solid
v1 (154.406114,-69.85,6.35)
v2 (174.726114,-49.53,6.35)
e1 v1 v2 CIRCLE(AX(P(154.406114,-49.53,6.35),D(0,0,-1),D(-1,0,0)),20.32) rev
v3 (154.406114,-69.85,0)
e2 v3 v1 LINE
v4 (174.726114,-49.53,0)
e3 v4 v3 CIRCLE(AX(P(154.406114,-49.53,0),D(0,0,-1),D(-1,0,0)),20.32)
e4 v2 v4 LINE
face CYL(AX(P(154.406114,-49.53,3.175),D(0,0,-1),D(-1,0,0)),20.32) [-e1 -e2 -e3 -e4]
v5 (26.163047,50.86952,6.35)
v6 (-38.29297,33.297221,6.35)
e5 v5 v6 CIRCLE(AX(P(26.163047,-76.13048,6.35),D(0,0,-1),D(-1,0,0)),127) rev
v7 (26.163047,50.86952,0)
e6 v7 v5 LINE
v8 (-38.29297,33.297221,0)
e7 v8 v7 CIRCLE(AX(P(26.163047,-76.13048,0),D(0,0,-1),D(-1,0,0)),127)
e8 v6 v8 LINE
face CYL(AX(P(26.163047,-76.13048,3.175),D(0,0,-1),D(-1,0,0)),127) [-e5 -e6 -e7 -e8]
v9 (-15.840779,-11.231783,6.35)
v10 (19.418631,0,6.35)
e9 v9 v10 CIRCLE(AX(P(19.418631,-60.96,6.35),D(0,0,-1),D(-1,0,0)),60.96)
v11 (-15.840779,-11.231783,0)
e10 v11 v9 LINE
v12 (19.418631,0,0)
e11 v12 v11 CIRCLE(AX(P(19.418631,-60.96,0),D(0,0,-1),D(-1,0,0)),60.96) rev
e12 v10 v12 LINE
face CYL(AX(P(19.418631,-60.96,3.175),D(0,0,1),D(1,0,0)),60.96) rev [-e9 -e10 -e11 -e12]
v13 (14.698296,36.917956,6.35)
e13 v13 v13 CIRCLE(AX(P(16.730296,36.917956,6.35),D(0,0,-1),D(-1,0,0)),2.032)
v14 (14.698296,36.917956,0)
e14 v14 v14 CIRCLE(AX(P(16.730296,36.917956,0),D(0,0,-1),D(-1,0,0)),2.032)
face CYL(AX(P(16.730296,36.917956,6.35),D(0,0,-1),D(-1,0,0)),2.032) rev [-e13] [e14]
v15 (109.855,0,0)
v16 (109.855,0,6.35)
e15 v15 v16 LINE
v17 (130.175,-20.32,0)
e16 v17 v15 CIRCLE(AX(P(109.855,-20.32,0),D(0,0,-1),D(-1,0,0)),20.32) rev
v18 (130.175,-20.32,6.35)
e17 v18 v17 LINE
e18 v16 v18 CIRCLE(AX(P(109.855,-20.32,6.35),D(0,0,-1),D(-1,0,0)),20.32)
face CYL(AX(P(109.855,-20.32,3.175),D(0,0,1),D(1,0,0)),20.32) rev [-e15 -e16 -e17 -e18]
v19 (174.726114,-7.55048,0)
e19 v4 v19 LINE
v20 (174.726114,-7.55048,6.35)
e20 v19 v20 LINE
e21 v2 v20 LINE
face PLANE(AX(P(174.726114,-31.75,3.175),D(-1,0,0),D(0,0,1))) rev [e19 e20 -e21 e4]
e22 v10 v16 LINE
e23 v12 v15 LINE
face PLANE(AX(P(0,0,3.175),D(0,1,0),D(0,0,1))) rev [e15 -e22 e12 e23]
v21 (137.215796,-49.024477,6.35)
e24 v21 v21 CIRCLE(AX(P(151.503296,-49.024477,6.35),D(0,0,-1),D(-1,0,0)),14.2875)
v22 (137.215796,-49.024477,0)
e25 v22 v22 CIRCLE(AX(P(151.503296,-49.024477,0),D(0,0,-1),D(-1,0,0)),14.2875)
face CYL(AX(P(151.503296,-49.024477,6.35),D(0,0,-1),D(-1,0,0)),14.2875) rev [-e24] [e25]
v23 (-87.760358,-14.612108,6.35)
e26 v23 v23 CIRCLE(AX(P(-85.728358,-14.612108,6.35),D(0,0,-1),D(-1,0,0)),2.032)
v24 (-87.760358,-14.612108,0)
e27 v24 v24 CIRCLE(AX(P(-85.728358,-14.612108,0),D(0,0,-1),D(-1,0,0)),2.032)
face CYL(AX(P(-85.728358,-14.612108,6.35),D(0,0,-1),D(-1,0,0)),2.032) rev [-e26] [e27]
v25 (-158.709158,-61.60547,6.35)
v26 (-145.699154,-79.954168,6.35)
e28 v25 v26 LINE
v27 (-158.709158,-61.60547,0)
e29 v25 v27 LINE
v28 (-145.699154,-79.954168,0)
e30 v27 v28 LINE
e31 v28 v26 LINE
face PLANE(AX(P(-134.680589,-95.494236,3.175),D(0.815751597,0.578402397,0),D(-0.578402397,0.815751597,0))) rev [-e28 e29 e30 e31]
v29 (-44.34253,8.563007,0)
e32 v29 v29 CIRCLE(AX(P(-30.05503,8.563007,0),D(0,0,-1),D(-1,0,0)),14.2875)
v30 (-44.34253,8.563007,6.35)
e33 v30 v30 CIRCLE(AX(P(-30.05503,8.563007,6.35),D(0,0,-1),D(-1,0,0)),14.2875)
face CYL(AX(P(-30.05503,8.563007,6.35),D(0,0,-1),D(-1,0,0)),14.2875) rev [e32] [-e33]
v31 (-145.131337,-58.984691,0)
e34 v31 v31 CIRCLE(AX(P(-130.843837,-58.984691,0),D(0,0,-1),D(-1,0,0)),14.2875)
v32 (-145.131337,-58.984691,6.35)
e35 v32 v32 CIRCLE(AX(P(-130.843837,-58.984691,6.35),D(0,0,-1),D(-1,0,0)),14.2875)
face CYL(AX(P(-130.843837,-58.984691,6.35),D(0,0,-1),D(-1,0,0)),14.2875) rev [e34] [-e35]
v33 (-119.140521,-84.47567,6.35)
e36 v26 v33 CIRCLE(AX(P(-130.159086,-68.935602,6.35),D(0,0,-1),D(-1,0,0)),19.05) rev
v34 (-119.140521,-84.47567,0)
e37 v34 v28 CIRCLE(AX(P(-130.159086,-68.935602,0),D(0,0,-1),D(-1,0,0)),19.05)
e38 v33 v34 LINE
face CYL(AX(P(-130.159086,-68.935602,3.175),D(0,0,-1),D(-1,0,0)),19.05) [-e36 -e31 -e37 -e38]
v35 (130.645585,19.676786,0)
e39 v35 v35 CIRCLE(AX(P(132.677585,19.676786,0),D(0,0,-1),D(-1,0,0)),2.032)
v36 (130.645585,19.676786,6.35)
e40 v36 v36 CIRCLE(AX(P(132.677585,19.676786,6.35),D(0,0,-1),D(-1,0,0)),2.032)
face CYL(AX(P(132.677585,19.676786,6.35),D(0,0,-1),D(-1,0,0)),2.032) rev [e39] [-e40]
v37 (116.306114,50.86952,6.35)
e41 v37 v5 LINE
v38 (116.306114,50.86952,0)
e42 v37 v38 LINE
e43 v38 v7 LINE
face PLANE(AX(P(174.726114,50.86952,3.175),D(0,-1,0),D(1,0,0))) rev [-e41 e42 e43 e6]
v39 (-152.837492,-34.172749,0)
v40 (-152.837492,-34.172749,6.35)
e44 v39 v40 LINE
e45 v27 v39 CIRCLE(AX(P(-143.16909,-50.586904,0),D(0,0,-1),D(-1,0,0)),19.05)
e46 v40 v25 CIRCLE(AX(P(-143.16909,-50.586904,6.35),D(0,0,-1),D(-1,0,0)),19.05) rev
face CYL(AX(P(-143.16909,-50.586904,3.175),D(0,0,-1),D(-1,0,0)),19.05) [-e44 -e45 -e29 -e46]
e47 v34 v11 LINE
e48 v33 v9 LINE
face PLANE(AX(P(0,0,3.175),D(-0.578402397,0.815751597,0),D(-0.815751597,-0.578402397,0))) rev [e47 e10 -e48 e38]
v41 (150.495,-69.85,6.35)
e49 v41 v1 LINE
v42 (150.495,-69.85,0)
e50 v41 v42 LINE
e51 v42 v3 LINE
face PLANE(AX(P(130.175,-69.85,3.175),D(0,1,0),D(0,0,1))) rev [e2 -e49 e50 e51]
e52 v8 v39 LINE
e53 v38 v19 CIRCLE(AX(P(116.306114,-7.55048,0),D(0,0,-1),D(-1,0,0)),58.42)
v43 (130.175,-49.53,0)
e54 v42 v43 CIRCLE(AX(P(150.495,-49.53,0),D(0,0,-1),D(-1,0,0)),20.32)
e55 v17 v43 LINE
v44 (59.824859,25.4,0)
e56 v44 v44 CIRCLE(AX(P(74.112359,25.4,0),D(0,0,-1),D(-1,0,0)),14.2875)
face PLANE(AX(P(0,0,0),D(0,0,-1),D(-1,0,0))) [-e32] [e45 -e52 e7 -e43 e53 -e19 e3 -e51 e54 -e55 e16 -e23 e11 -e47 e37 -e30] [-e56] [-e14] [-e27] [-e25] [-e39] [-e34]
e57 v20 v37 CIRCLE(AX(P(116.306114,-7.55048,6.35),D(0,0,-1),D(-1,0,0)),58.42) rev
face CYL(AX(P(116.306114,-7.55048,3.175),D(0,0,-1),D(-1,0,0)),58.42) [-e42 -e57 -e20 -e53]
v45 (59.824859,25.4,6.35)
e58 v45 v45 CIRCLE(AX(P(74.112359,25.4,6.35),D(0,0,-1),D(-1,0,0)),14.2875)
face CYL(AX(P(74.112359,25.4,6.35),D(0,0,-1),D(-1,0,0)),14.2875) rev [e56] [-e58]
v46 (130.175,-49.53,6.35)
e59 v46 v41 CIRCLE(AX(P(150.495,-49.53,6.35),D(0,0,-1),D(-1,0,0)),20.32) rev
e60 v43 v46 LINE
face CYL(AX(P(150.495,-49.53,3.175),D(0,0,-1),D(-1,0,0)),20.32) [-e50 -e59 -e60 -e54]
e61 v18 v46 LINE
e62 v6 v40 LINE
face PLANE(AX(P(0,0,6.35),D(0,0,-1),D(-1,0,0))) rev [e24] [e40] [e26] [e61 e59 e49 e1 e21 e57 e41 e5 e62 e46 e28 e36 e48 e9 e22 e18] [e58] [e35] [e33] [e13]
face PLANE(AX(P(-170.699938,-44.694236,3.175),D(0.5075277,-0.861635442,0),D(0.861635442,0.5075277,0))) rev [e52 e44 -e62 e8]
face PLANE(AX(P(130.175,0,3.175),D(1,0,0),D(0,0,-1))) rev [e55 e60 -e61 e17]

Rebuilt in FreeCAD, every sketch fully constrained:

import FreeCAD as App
import Part
import Sketcher

V = App.Vector
Q = App.Units.Quantity


def edges_at(feature, points):
    """Names of the edges that pass closest to the given points."""
    edges = feature.Shape.Edges
    near = lambda p: min(range(len(edges)), key=lambda i: edges[i].distToShape(Part.Vertex(*p))[0])
    return sorted({f"Edge{near(p) + 1}" for p in points})


def add_polygon(sketch, points):
    """Adds a closed chain of lines whose ends are joined by coincident constraints."""
    first, n = sketch.GeometryCount, len(points)
    for a, b in zip(points, points[1:] + points[:1]):
        sketch.addGeometry(Part.LineSegment(App.Vector(*a, 0), App.Vector(*b, 0)), False)
    for i in range(n):
        sketch.addConstraint(Sketcher.Constraint("Coincident", first + i, 2, first + (i + 1) % n, 1))

doc = App.newDocument("Part")
body = doc.addObject("PartDesign::Body", "Body")

sketch1 = doc.addObject("Sketcher::SketchObject", "Sketch")
body.addObject(sketch1)
sketch1.AttachmentSupport = (doc.XY_Plane, [""])
sketch1.MapMode = "FlatFace"
add_polygon(sketch1, [(-135, -95), (0, 0), (130, 0), (130, -70), (175, -70), (175, 51), (-8, 51), (-171, -45)])
sketch1.addConstraint([
    Sketcher.Constraint("Horizontal", 1),
    Sketcher.Constraint("Vertical", 2),
    Sketcher.Constraint("Horizontal", 3),
    Sketcher.Constraint("Vertical", 4),
    Sketcher.Constraint("Horizontal", 5),
    Sketcher.Constraint("Coincident", 0, 2, -1, 1),
    Sketcher.Constraint("Perpendicular", 0, 7),
    Sketcher.Constraint("DistanceY", 7, 2, 6, 2, Q("2 in")),
    Sketcher.Constraint("Distance", 0, Q("6.5 in")),
    Sketcher.Constraint("DistanceY", 2, 2, 2, 1, Q("2.75 in")),
    Sketcher.Constraint("DistanceX", 1, 1, 1, 2, Q("5.125 in")),
    Sketcher.Constraint("DistanceY", 4, 1, 4, 2, 120.71952),
    Sketcher.Constraint("Distance", 6, 188.292691),
    Sketcher.Constraint("Distance", 7, 62.273859),
    Sketcher.Constraint("DistanceX", 3, 1, 3, 2, 44.551114),
])
pad1 = doc.addObject("PartDesign::Pad", "Pad")
body.addObject(pad1)
pad1.Profile = sketch1
pad1.Length = Q("0.125 in")
doc.recompute()

fillet = doc.addObject("PartDesign::Fillet", "Fillet")
body.addObject(fillet)
fillet.Base = (pad1, edges_at(pad1, [(-8.46, 50.87, 1.587)]))
fillet.Radius = Q("5 in")
doc.recompute()

fillet2 = doc.addObject("PartDesign::Fillet", "Fillet001")
body.addObject(fillet2)
fillet2.Base = (fillet, edges_at(fillet, [(174.726, 50.87, 1.587)]))
fillet2.Radius = Q("0.25 in")

sketch2 = doc.addObject("Sketcher::SketchObject", "Sketch001")
body.addObject(sketch2)
sketch2.AttachmentSupport = (doc.XY_Plane, [""])
sketch2.MapMode = "FlatFace"
sketch2.addGeometry([
    Part.Circle(V(151.5, -49, 0), V(0, 0, 1), 14.3),
    Part.Circle(V(-130.8, -59, 0), V(0, 0, 1), 14.3),
    Part.Circle(V(-30.1, 8.6, 0), V(0, 0, 1), 14.3),
    Part.Circle(V(74.1, 25.4, 0), V(0, 0, 1), 14.3),
    Part.Circle(V(-85.7, -14.6, 0), V(0, 0, 1), 2),
    Part.Circle(V(132.7, 19.7, 0), V(0, 0, 1), 2),
    Part.Circle(V(16.7, 36.9, 0), V(0, 0, 1), 2),
], False)
sketch2.addConstraint([
    Sketcher.Constraint("Equal", 0, 1),
    Sketcher.Constraint("Equal", 1, 2),
    Sketcher.Constraint("Equal", 2, 3),
    Sketcher.Constraint("Equal", 4, 5),
    Sketcher.Constraint("Equal", 5, 6),
    Sketcher.Constraint("Diameter", 4, Q("0.16 in")),
    Sketcher.Constraint("Diameter", 0, Q("1.125 in")),
    Sketcher.Constraint("DistanceY", -1, 1, 3, 3, Q("1 in")),
    Sketcher.Constraint("DistanceX", 1, 3, 4, 3, Q("1.7762 in")),
    Sketcher.Constraint("DistanceY", 1, 3, 2, 3, 67.547698),
    Sketcher.Constraint("DistanceX", 6, 3, 0, 3, 134.773),
    Sketcher.Constraint("DistanceY", 1, 3, -1, 1, 58.984691),
    Sketcher.Constraint("DistanceX", 2, 3, -1, 1, 30.05503),
    Sketcher.Constraint("DistanceX", -1, 1, 3, 3, 74.112359),
    Sketcher.Constraint("DistanceX", 4, 3, -1, 1, 85.728358),
    Sketcher.Constraint("DistanceY", 4, 3, -1, 1, 14.612108),
    Sketcher.Constraint("DistanceY", 0, 3, 4, 3, 34.412369),
    Sketcher.Constraint("DistanceX", 5, 3, 0, 3, 18.825711),
    Sketcher.Constraint("DistanceY", 2, 3, 5, 3, 11.113779),
    Sketcher.Constraint("DistanceY", 2, 3, 6, 3, 28.354948),
    Sketcher.Constraint("DistanceX", -1, 1, 0, 3, 151.503296),
])
pocket1 = doc.addObject("PartDesign::Pocket", "Pocket")
body.addObject(pocket1)
pocket1.Profile = sketch2
pocket1.Length = Q("0.725 in")
pocket1.Reversed = True
doc.recompute()

fillet3 = doc.addObject("PartDesign::Fillet", "Fillet002")
body.addObject(fillet3)
fillet3.Base = (pocket1, edges_at(pocket1, [(-134.681, -95.494, 1.587)]))
fillet3.Radius = Q("1.3 in")

sketch3 = doc.addObject("Sketcher::SketchObject", "Sketch002")
body.addObject(sketch3)
sketch3.AttachmentSupport = (doc.XY_Plane, [""])
sketch3.MapMode = "FlatFace"
add_polygon(sketch3, [(-135, -95), (0, 0), (130, 0), (130, -70), (175, -70), (175, 51), (-8, 51), (-171, -45)])
sketch3.addConstraint([
    Sketcher.Constraint("Horizontal", 1),
    Sketcher.Constraint("Vertical", 2),
    Sketcher.Constraint("Horizontal", 3),
    Sketcher.Constraint("Vertical", 4),
    Sketcher.Constraint("Horizontal", 5),
    Sketcher.Constraint("Coincident", 0, 2, -1, 1),
    Sketcher.Constraint("Perpendicular", 0, 7),
    Sketcher.Constraint("DistanceY", 7, 2, 6, 2, Q("2 in")),
    Sketcher.Constraint("Distance", 0, Q("6.5 in")),
    Sketcher.Constraint("DistanceY", 2, 2, 2, 1, Q("2.75 in")),
    Sketcher.Constraint("DistanceX", 1, 1, 1, 2, Q("5.125 in")),
    Sketcher.Constraint("DistanceY", 4, 1, 4, 2, 120.71952),
    Sketcher.Constraint("Distance", 6, 188.292691),
    Sketcher.Constraint("Distance", 7, 62.273859),
    Sketcher.Constraint("DistanceX", 3, 1, 3, 2, 44.551114),
])
pad2 = doc.addObject("PartDesign::Pad", "Pad001")
body.addObject(pad2)
pad2.Profile = sketch3
pad2.Length = Q("0.25 in")
doc.recompute()

fillet4 = doc.addObject("PartDesign::Fillet", "Fillet003")
body.addObject(fillet4)
fillet4.Base = (pad2, edges_at(pad2, [(-8.46, 50.87, 3.175)]))
fillet4.Radius = Q("5 in")
doc.recompute()

fillet5 = doc.addObject("PartDesign::Fillet", "Fillet004")
body.addObject(fillet5)
fillet5.Base = (fillet4, edges_at(fillet4, [(-170.7, -44.694, 3.175)]))
fillet5.Radius = Q("0.75 in")
doc.recompute()

fillet6 = doc.addObject("PartDesign::Fillet", "Fillet005")
body.addObject(fillet6)
fillet6.Base = (fillet5, edges_at(fillet5, [(-134.681, -95.494, 3.175)]))
fillet6.Radius = Q("0.75 in")

sketch4 = doc.addObject("Sketcher::SketchObject", "Sketch003")
body.addObject(sketch4)
sketch4.AttachmentSupport = (doc.XY_Plane, [""])
sketch4.MapMode = "FlatFace"
sketch4.addGeometry([
    Part.Circle(V(151.5, -49, 0), V(0, 0, 1), 14.3),
    Part.Circle(V(-130.8, -59, 0), V(0, 0, 1), 14.3),
    Part.Circle(V(-30.1, 8.6, 0), V(0, 0, 1), 14.3),
    Part.Circle(V(74.1, 25.4, 0), V(0, 0, 1), 14.3),
    Part.Circle(V(-85.7, -14.6, 0), V(0, 0, 1), 2),
    Part.Circle(V(132.7, 19.7, 0), V(0, 0, 1), 2),
    Part.Circle(V(16.7, 36.9, 0), V(0, 0, 1), 2),
], False)
sketch4.addConstraint([
    Sketcher.Constraint("Equal", 0, 1),
    Sketcher.Constraint("Equal", 1, 2),
    Sketcher.Constraint("Equal", 2, 3),
    Sketcher.Constraint("Equal", 4, 5),
    Sketcher.Constraint("Equal", 5, 6),
    Sketcher.Constraint("Diameter", 4, Q("0.16 in")),
    Sketcher.Constraint("Diameter", 0, Q("1.125 in")),
    Sketcher.Constraint("DistanceY", -1, 1, 3, 3, Q("1 in")),
    Sketcher.Constraint("DistanceX", 1, 3, 4, 3, Q("1.7762 in")),
    Sketcher.Constraint("DistanceY", 1, 3, 2, 3, 67.547698),
    Sketcher.Constraint("DistanceX", 6, 3, 0, 3, 134.773),
    Sketcher.Constraint("DistanceY", 1, 3, -1, 1, 58.984691),
    Sketcher.Constraint("DistanceX", 2, 3, -1, 1, 30.05503),
    Sketcher.Constraint("DistanceX", -1, 1, 3, 3, 74.112359),
    Sketcher.Constraint("DistanceX", 4, 3, -1, 1, 85.728358),
    Sketcher.Constraint("DistanceY", 4, 3, -1, 1, 14.612108),
    Sketcher.Constraint("DistanceY", 0, 3, 4, 3, 34.412369),
    Sketcher.Constraint("DistanceX", 5, 3, 0, 3, 18.825711),
    Sketcher.Constraint("DistanceY", 2, 3, 5, 3, 11.113779),
    Sketcher.Constraint("DistanceY", 2, 3, 6, 3, 28.354948),
    Sketcher.Constraint("DistanceX", -1, 1, 0, 3, 151.503296),
])
pocket2 = doc.addObject("PartDesign::Pocket", "Pocket001")
body.addObject(pocket2)
pocket2.Profile = sketch4
pocket2.Length = Q("0.25 in")
pocket2.Reversed = True
doc.recompute()

fillet7 = doc.addObject("PartDesign::Fillet", "Fillet006")
body.addObject(fillet7)
fillet7.Base = (pocket2, edges_at(pocket2, [(0, 0, 3.175)]))
fillet7.Radius = Q("2.4 in")
doc.recompute()

fillet8 = doc.addObject("PartDesign::Fillet", "Fillet007")
body.addObject(fillet8)
fillet8.Base = (fillet7, edges_at(fillet7, [(130.175, 0, 3.175)]))
fillet8.Radius = Q("0.8 in")
doc.recompute()

fillet9 = doc.addObject("PartDesign::Fillet", "Fillet008")
body.addObject(fillet9)
fillet9.Base = (fillet8, edges_at(fillet8, [(130.175, -69.85, 3.175)]))
fillet9.Radius = Q("0.8 in")
doc.recompute()

fillet10 = doc.addObject("PartDesign::Fillet", "Fillet009")
body.addObject(fillet10)
fillet10.Base = (fillet9, edges_at(fillet9, [(174.726, -69.85, 3.175)]))
fillet10.Radius = Q("0.8 in")
doc.recompute()

fillet11 = doc.addObject("PartDesign::Fillet", "Fillet010")
body.addObject(fillet11)
fillet11.Base = (fillet10, edges_at(fillet10, [(174.726, 50.87, 3.175)]))
fillet11.Radius = Q("2.3 in")

doc.recompute()
